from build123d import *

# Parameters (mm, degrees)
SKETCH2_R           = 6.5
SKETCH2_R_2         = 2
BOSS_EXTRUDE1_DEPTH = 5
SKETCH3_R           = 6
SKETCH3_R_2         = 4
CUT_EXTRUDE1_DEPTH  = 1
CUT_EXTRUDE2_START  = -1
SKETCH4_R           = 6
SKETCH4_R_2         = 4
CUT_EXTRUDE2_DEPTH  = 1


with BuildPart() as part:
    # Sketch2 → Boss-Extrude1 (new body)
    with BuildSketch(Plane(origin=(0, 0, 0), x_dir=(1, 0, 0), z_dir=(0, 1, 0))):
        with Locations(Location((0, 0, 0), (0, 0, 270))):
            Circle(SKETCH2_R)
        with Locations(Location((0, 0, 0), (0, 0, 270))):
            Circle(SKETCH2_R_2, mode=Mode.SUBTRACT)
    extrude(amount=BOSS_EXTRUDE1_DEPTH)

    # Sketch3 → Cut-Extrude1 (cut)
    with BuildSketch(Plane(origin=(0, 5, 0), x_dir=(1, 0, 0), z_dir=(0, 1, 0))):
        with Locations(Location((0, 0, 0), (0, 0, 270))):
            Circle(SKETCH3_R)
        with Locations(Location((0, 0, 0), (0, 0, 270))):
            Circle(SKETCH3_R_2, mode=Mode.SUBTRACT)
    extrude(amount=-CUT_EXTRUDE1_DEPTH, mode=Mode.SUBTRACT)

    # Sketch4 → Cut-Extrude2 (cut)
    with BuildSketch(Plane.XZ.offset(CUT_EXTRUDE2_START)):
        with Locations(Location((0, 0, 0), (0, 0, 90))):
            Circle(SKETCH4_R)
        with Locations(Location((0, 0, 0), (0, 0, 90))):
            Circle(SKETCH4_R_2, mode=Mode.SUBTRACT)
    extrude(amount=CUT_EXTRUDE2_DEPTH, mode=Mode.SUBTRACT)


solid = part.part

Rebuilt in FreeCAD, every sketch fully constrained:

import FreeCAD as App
import Part
import Sketcher

V = App.Vector
Q = App.Units.Quantity

doc = App.newDocument("Part")
params = doc.addObject("Spreadsheet::Sheet", "Params")
for row, (alias, value) in enumerate([
    ("sketch1_diameter", "13 mm"),
    ("sketch1_diameter2", "4 mm"),
    ("pad1_length", "5 mm"),
    ("sketch2_diameter", "12 mm"),
    ("sketch2_diameter2", "8 mm"),
    ("pocket1_length", "1 mm"),
    ("sketch3_diameter", "12 mm"),
    ("sketch3_diameter2", "8 mm"),
    ("pocket2_length", "1 mm"),
], start=1):
    params.set(f"A{row}", alias)
    params.set(f"B{row}", "=" + value)
    params.setAlias(f"B{row}", alias)

body = doc.addObject("PartDesign::Body", "Body")

# Sketch on XZ plane
sketch1 = doc.addObject("Sketcher::SketchObject", "Sketch")
body.addObject(sketch1)
sketch1.AttachmentSupport = (doc.XZ_Plane, [""])
sketch1.MapMode = "FlatFace"
sketch1.addGeometry(Part.Circle(V(0, 0, 0), V(0, 0, 1), 6.5), False)
sketch1.addGeometry(Part.Circle(V(0, 0, 0), V(0, 0, 1), 2), False)
sketch1.addConstraint(Sketcher.Constraint("Coincident", 0, 3, -1, 1))
sketch1.addConstraint(Sketcher.Constraint("Coincident", 1, 3, -1, 1))
sketch1.addConstraint(Sketcher.Constraint("Diameter", 0, Q("13 mm")))
sketch1.addConstraint(Sketcher.Constraint("Diameter", 1, Q("4 mm")))
sketch1.setExpression("Constraints[2]", "Params.sketch1_diameter")
sketch1.setExpression("Constraints[3]", "Params.sketch1_diameter2")
pad1 = doc.addObject("PartDesign::Pad", "Pad")
body.addObject(pad1)
pad1.Profile = sketch1
pad1.setExpression("Length", "Params.pad1_length")
pad1.Reversed = True

# Sketch on XZ plane
sketch2 = doc.addObject("Sketcher::SketchObject", "Sketch001")
body.addObject(sketch2)
sketch2.AttachmentSupport = (doc.XZ_Plane, [""])
sketch2.MapMode = "FlatFace"
sketch2.AttachmentOffset = App.Placement(V(0, 0, -5), App.Rotation())
sketch2.addGeometry(Part.Circle(V(0, 0, 0), V(0, 0, 1), 6), False)
sketch2.addGeometry(Part.Circle(V(0, 0, 0), V(0, 0, 1), 4), False)
sketch2.addConstraint(Sketcher.Constraint("Coincident", 0, 3, -1, 1))
sketch2.addConstraint(Sketcher.Constraint("Coincident", 1, 3, -1, 1))
sketch2.addConstraint(Sketcher.Constraint("Diameter", 0, Q("12 mm")))
sketch2.addConstraint(Sketcher.Constraint("Diameter", 1, Q("8 mm")))
sketch2.setExpression("Constraints[2]", "Params.sketch2_diameter")
sketch2.setExpression("Constraints[3]", "Params.sketch2_diameter2")
pocket1 = doc.addObject("PartDesign::Pocket", "Pocket")
body.addObject(pocket1)
pocket1.Profile = sketch2
pocket1.setExpression("Length", "Params.pocket1_length")
pocket1.Reversed = True

# Sketch on XZ plane
sketch3 = doc.addObject("Sketcher::SketchObject", "Sketch002")
body.addObject(sketch3)
sketch3.AttachmentSupport = (doc.XZ_Plane, [""])
sketch3.MapMode = "FlatFace"
sketch3.AttachmentOffset = App.Placement(V(0, 0, -1), App.Rotation())
sketch3.addGeometry(Part.Circle(V(0, 0, 0), V(0, 0, 1), 6), False)
sketch3.addGeometry(Part.Circle(V(0, 0, 0), V(0, 0, 1), 4), False)
sketch3.addConstraint(Sketcher.Constraint("Coincident", 0, 3, -1, 1))
sketch3.addConstraint(Sketcher.Constraint("Coincident", 1, 3, -1, 1))
sketch3.addConstraint(Sketcher.Constraint("Diameter", 0, Q("12 mm")))
sketch3.addConstraint(Sketcher.Constraint("Diameter", 1, Q("8 mm")))
sketch3.setExpression("Constraints[2]", "Params.sketch3_diameter")
sketch3.setExpression("Constraints[3]", "Params.sketch3_diameter2")
pocket2 = doc.addObject("PartDesign::Pocket", "Pocket001")
body.addObject(pocket2)
pocket2.Profile = sketch3
pocket2.setExpression("Length", "Params.pocket2_length")
pocket2.Reversed = True

doc.recompute()
